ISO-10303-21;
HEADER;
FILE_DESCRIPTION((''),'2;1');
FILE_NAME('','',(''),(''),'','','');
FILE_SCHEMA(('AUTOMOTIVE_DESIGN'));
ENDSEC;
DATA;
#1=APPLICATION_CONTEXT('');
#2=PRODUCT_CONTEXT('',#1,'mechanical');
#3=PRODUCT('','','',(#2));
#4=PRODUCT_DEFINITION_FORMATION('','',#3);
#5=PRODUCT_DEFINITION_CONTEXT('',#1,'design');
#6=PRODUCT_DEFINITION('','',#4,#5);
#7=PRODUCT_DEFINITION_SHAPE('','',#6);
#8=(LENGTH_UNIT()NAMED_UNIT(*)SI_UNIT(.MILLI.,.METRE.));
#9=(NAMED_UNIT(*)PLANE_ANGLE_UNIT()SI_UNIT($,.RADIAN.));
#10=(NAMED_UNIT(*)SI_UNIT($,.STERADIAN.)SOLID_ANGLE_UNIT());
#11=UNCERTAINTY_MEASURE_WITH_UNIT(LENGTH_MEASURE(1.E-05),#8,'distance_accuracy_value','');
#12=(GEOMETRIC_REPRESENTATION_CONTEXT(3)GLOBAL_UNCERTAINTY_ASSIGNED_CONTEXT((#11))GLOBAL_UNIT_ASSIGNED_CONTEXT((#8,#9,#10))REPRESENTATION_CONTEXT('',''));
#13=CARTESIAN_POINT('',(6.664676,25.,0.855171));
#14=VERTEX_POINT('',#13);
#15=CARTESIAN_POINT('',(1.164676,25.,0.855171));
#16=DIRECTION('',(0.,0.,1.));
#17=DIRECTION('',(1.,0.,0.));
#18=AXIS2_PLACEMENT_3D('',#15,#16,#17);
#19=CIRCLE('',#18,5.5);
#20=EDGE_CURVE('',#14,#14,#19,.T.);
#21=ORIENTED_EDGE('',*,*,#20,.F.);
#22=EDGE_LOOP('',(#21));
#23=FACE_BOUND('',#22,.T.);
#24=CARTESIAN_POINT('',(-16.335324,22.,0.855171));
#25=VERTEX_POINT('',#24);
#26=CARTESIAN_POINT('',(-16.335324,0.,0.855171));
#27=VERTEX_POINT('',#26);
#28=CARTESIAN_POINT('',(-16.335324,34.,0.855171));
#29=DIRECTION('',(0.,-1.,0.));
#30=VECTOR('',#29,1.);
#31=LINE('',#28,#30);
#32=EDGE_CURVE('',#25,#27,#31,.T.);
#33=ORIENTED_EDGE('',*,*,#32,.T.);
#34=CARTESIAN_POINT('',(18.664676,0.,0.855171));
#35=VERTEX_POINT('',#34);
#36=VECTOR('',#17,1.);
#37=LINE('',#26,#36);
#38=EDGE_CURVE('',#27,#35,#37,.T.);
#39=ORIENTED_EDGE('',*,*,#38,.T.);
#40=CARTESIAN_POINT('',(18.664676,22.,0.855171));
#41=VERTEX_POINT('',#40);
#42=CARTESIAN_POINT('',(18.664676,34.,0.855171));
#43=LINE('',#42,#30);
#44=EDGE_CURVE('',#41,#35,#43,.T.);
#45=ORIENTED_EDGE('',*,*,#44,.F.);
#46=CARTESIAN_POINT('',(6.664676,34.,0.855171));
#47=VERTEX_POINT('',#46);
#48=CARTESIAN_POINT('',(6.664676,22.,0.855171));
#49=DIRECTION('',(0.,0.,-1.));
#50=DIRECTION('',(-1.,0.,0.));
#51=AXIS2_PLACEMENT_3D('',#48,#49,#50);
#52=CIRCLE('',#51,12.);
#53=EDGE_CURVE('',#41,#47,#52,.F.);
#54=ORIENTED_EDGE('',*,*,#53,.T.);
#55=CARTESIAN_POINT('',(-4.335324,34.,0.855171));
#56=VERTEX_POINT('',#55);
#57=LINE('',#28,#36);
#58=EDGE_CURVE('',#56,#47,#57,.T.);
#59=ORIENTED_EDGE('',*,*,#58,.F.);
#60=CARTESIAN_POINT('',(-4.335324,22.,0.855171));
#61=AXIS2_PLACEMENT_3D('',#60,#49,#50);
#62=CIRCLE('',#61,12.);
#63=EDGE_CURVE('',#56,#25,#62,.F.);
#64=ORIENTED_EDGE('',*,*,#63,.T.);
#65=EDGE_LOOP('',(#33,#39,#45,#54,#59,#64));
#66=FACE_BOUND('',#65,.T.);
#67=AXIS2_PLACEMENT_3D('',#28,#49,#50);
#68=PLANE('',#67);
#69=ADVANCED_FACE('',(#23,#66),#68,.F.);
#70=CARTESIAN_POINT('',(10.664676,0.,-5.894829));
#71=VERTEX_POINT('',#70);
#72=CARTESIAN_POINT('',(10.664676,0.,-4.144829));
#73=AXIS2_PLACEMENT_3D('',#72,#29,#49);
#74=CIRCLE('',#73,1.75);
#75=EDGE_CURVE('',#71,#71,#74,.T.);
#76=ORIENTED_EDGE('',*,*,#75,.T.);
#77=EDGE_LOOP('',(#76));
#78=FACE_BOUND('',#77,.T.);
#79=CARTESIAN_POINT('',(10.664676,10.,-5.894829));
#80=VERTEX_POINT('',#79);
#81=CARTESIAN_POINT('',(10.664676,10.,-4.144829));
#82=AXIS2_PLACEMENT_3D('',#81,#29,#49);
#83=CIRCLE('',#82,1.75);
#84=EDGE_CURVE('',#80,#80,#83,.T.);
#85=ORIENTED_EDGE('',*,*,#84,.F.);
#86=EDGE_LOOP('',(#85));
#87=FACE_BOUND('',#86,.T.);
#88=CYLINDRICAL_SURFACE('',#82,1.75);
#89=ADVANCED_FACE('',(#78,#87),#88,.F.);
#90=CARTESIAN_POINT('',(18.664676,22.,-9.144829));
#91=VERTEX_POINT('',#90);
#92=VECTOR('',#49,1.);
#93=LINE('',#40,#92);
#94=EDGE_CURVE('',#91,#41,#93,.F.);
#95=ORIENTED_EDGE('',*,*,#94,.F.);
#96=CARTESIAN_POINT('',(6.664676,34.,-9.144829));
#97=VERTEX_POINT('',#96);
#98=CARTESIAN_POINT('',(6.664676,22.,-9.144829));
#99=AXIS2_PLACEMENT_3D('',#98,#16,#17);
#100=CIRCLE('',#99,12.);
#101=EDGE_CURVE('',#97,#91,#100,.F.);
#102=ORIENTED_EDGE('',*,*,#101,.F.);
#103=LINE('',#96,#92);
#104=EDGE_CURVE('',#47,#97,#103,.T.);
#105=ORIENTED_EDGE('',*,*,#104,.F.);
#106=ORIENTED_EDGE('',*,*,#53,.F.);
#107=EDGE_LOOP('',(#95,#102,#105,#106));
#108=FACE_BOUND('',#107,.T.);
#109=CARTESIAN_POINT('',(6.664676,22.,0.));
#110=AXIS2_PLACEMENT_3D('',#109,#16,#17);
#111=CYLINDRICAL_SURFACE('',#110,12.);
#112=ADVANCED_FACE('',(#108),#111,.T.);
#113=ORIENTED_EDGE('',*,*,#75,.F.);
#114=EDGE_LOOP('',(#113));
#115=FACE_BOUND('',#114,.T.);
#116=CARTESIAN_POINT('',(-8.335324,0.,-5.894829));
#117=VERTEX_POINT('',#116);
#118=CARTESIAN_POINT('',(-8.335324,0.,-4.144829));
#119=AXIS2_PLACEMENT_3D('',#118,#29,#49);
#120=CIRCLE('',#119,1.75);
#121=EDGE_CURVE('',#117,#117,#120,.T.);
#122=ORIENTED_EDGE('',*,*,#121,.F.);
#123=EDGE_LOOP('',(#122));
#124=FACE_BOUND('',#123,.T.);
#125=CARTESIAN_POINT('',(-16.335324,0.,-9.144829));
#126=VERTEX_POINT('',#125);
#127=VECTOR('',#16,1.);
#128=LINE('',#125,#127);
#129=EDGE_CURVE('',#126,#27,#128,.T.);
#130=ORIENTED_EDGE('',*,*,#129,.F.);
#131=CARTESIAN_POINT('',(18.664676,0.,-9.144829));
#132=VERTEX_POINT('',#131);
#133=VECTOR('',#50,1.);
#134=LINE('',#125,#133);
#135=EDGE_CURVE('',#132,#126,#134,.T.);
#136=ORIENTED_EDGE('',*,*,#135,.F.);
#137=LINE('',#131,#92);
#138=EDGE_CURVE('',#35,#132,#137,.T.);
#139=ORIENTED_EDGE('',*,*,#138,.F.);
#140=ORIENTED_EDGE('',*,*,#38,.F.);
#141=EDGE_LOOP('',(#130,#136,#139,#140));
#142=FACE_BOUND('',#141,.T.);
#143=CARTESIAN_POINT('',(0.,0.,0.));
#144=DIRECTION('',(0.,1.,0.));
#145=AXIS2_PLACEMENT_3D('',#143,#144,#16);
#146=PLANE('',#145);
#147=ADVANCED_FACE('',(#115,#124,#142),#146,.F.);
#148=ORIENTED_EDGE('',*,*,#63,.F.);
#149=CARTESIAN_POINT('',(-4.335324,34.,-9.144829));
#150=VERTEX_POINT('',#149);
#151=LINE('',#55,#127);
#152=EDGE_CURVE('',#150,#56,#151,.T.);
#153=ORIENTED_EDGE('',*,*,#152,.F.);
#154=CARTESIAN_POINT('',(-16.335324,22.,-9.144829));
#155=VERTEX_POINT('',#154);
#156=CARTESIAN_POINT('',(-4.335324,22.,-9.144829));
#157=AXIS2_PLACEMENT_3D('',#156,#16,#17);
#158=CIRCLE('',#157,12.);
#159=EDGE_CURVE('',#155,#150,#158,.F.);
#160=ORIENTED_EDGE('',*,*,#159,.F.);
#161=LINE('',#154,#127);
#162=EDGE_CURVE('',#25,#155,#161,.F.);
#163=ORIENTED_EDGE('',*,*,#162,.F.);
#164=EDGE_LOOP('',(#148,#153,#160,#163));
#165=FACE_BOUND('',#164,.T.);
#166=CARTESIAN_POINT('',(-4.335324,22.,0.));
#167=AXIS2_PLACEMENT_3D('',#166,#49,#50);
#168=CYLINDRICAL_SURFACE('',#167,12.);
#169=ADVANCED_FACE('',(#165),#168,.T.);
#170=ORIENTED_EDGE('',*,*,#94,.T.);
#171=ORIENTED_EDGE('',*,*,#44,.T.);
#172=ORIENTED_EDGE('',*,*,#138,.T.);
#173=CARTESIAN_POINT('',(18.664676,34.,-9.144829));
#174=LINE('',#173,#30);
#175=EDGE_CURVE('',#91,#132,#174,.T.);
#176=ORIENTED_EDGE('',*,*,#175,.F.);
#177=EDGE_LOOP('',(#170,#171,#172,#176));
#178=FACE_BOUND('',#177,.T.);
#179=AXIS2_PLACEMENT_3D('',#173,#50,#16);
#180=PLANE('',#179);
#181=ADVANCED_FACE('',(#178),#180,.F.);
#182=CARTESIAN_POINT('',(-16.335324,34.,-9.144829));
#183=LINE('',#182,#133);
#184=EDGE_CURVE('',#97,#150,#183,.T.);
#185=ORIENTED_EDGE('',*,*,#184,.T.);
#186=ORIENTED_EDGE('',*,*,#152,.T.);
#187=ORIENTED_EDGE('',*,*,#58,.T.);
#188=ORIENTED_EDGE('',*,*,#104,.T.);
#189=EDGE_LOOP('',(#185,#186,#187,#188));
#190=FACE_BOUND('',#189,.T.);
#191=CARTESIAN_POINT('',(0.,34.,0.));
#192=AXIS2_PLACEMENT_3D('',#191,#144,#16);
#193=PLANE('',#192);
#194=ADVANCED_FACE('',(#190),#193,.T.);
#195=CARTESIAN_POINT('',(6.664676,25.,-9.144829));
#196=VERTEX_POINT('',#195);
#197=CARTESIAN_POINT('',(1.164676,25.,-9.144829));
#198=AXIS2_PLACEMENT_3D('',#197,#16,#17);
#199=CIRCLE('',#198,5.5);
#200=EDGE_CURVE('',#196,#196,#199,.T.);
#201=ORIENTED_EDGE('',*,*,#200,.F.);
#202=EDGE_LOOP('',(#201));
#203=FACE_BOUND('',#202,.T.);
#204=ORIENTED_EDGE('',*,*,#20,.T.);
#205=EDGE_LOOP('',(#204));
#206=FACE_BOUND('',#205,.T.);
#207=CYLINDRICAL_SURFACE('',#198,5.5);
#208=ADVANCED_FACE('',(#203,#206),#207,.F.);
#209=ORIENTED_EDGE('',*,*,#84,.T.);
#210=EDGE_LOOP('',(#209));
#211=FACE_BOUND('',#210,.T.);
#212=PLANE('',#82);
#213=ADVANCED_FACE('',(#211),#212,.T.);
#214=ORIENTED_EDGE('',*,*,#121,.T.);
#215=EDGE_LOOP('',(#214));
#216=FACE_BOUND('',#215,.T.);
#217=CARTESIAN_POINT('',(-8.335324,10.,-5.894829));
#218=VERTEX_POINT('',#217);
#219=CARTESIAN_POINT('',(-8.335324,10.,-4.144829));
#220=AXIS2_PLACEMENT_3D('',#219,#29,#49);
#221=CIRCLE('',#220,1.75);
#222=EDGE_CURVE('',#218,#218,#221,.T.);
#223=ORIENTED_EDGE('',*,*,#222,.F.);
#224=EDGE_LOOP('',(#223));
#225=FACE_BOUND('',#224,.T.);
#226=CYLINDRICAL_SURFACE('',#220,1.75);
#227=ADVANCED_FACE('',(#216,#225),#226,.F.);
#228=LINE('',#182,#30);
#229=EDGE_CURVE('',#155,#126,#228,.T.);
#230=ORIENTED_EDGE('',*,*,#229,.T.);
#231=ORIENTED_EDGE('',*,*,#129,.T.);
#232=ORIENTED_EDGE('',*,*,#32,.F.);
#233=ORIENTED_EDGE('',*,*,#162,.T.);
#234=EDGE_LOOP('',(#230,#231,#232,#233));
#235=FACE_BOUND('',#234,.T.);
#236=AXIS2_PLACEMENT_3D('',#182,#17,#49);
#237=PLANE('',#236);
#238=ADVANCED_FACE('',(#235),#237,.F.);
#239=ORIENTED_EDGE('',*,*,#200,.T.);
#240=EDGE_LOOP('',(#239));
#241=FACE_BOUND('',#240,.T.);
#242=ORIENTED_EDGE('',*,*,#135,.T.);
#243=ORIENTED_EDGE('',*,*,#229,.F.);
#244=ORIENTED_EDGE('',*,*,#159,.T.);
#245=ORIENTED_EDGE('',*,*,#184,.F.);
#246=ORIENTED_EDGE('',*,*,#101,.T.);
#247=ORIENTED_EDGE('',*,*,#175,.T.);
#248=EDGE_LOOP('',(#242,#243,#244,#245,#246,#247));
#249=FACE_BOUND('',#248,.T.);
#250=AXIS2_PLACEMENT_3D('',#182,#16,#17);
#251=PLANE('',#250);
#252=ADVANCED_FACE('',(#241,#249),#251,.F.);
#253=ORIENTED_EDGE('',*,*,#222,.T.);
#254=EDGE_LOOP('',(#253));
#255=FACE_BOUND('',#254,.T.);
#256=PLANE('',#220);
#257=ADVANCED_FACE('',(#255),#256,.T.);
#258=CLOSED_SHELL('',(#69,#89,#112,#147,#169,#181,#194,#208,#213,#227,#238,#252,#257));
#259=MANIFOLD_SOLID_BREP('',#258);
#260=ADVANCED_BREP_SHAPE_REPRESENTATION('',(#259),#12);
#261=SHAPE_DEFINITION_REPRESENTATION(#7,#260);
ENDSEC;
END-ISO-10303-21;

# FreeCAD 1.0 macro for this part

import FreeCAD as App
import Part
import Sketcher
Q = App.Units.Quantity


def edges_at(feature, points):
    """Names of the edges that pass closest to the given points."""
    edges = feature.Shape.Edges
    near = lambda p: min(range(len(edges)), key=lambda i: edges[i].distToShape(Part.Vertex(*p))[0])
    return sorted({f"Edge{near(p) + 1}" for p in points})

doc = App.newDocument("Part")
body = doc.addObject("PartDesign::Body", "Body")

sketch1 = doc.addObject("Sketcher::SketchObject", "Sketch")
body.addObject(sketch1)
sketch1.AttachmentSupport = (doc.XZ_Plane, [""])
sketch1.MapMode = "FlatFace"
sketch1.addGeometry([
    Part.LineSegment(App.Vector(-16, -9, 0), App.Vector(-16, 1, 0)),
    Part.LineSegment(App.Vector(-16, 1, 0), App.Vector(19, 1, 0)),
    Part.LineSegment(App.Vector(19, 1, 0), App.Vector(19, -9, 0)),
    Part.LineSegment(App.Vector(19, -9, 0), App.Vector(-16, -9, 0)),
], False)
sketch1.addConstraint([
    Sketcher.Constraint("Coincident", 0, 2, 1, 1),
    Sketcher.Constraint("Coincident", 1, 2, 2, 1),
    Sketcher.Constraint("Coincident", 2, 2, 3, 1),
    Sketcher.Constraint("Coincident", 3, 2, 0, 1),
    Sketcher.Constraint("Vertical", 0),
    Sketcher.Constraint("Horizontal", 1),
    Sketcher.Constraint("Vertical", 2),
    Sketcher.Constraint("Horizontal", 3),
    Sketcher.Constraint("DistanceX", 1, 1, 1, 2, Q("35 mm")),
    Sketcher.Constraint("DistanceY", 0, 1, 0, 2, Q("10 mm")),
    Sketcher.Constraint("DistanceY", -1, 1, 0, 2, Q("0.855171 mm")),
    Sketcher.Constraint("DistanceX", 0, 2, -1, 1, Q("16.335324 mm")),
])
pad1 = doc.addObject("PartDesign::Pad", "Pad")
body.addObject(pad1)
pad1.Profile = sketch1
pad1.Length = 34
pad1.Reversed = True

sketch2 = doc.addObject("Sketcher::SketchObject", "Sketch001")
body.addObject(sketch2)
sketch2.AttachmentSupport = (doc.XY_Plane, [""])
sketch2.MapMode = "FlatFace"
sketch2.AttachmentOffset = App.Placement(App.Vector(0, 0, 0.855171), App.Rotation())
sketch2.addGeometry(Part.Circle(App.Vector(1, 25, 0), App.Vector(0, 0, 1), 6), False)
sketch2.addConstraint([
    Sketcher.Constraint("Diameter", 0, Q("11 mm")),
    Sketcher.Constraint("DistanceY", -1, 1, 0, 3, Q("25 mm")),
    Sketcher.Constraint("DistanceX", -1, 1, 0, 3, Q("1.164676 mm")),
])
pocket1 = doc.addObject("PartDesign::Pocket", "Pocket")
body.addObject(pocket1)
pocket1.Profile = sketch2
pocket1.Type = "ThroughAll"

sketch3 = doc.addObject("Sketcher::SketchObject", "Sketch002")
body.addObject(sketch3)
sketch3.AttachmentSupport = (doc.XZ_Plane, [""])
sketch3.MapMode = "FlatFace"
sketch3.addGeometry([
    Part.Circle(App.Vector(-8.3, -4.1, 0), App.Vector(0, 0, 1), 1.8),
    Part.Circle(App.Vector(10.7, -4.1, 0), App.Vector(0, 0, 1), 1.8),
], False)
sketch3.addConstraint([
    Sketcher.Constraint("Equal", 0, 1),
    Sketcher.Constraint("Horizontal", 0, 3, 1, 3),
    Sketcher.Constraint("Diameter", 0, Q("3.5 mm")),
    Sketcher.Constraint("DistanceX", 0, 3, 1, 3, Q("19 mm")),
    Sketcher.Constraint("DistanceY", 0, 3, -1, 1, Q("4.144829 mm")),
    Sketcher.Constraint("DistanceX", 0, 3, -1, 1, Q("8.335324 mm")),
])
pocket2 = doc.addObject("PartDesign::Pocket", "Pocket001")
body.addObject(pocket2)
pocket2.Profile = sketch3
pocket2.Length = 10
doc.recompute()

fillet = doc.addObject("PartDesign::Fillet", "Fillet")
body.addObject(fillet)
fillet.Base = (pocket2, edges_at(pocket2, [(18.665, 34, -4.145), (-16.335, 34, -4.145)]))
fillet.Radius = 12

doc.recompute()
